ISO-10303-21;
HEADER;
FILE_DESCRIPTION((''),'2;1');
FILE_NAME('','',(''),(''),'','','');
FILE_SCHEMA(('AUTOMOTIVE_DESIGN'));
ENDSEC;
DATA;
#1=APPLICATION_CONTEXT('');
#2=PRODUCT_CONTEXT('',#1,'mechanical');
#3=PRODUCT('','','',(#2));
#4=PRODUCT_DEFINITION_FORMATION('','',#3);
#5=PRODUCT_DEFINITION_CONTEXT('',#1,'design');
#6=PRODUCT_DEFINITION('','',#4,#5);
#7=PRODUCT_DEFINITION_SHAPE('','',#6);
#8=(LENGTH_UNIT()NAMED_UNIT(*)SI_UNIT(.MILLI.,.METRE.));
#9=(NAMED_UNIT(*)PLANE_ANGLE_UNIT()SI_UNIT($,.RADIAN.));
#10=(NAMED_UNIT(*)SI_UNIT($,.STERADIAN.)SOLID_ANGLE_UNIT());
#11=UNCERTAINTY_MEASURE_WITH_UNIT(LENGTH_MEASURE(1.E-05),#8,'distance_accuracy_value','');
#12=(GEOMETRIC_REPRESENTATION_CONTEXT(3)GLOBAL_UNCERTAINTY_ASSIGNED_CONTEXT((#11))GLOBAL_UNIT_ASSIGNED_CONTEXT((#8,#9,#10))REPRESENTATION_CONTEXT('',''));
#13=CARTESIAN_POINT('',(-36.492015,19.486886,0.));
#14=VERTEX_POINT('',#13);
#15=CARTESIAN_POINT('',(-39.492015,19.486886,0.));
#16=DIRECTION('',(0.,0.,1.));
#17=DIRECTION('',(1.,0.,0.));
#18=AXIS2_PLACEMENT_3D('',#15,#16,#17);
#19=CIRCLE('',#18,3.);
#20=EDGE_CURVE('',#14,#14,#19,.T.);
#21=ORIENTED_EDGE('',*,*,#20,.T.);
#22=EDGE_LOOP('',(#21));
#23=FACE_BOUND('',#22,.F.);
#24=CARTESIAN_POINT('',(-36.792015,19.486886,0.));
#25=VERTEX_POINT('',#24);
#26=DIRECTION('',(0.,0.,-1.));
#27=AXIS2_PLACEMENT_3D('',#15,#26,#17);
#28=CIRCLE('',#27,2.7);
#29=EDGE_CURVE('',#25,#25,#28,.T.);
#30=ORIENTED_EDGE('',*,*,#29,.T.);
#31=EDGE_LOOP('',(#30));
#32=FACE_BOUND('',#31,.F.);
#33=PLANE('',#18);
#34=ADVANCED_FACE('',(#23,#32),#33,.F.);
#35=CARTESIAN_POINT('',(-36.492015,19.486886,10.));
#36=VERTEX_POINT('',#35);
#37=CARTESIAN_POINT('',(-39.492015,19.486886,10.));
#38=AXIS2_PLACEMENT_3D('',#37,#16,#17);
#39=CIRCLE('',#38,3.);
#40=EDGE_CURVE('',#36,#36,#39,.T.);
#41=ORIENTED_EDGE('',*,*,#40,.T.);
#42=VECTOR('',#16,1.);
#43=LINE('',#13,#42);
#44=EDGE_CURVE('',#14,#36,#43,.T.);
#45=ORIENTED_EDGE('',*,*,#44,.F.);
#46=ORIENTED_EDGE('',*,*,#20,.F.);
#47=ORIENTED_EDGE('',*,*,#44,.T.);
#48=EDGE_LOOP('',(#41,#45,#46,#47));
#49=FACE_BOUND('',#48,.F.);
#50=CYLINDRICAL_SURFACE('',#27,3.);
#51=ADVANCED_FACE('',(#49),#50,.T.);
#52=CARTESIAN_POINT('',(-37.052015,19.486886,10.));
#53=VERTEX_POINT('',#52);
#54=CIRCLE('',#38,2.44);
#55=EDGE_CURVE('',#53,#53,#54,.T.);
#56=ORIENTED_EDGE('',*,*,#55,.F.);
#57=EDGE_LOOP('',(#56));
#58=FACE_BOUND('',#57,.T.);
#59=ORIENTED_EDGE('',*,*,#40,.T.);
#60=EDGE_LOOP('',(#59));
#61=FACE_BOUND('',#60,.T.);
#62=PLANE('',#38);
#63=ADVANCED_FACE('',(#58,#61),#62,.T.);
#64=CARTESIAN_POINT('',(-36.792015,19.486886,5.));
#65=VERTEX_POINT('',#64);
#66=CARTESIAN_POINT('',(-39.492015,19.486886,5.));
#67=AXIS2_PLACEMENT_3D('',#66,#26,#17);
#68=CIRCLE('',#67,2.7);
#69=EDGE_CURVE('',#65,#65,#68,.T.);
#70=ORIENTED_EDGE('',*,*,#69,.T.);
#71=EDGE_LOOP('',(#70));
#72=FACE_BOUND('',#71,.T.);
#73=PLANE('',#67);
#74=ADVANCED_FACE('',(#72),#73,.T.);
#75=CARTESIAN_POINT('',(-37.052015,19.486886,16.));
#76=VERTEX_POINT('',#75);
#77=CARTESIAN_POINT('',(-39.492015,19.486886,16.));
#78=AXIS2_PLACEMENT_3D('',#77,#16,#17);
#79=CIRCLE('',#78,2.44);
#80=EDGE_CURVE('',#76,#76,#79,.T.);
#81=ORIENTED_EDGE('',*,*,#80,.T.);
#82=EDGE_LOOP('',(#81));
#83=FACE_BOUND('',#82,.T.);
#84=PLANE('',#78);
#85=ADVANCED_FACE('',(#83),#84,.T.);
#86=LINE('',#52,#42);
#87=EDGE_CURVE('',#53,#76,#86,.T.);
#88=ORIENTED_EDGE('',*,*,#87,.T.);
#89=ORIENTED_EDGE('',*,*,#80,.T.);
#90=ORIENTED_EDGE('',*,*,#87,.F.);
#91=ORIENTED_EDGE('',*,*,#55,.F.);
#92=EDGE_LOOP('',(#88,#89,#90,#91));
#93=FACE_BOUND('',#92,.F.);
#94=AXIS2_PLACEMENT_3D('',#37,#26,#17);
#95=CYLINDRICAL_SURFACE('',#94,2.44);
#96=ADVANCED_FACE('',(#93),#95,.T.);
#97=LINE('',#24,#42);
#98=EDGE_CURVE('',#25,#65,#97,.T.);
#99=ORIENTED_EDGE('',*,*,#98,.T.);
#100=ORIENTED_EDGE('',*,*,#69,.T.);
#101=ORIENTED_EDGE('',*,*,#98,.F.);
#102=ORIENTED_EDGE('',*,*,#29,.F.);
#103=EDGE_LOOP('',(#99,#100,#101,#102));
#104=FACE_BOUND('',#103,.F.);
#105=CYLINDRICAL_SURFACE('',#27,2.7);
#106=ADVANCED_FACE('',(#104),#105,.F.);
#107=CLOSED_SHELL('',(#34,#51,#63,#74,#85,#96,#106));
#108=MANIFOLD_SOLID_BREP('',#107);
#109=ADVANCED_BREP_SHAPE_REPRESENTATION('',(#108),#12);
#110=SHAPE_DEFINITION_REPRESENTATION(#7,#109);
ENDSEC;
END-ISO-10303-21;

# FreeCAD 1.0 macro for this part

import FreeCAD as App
import Part
import Sketcher

V = App.Vector
Q = App.Units.Quantity

doc = App.newDocument("Part")
body = doc.addObject("PartDesign::Body", "Body")

sketch1 = body.newObject("Sketcher::SketchObject", "Sketch")
sketch1.AttachmentSupport = (doc.getObject("XY_Plane"), [""])
sketch1.MapMode = "FlatFace"
sketch1.addGeometry(Part.Circle(V(-39.5, 19.5, 0), V(0, 0, 1), 3), False)
sketch1.addConstraint([
    Sketcher.Constraint("Diameter", 0, Q("6 mm")),
    Sketcher.Constraint("DistanceX", 0, 3, -1, 1, Q("39.492015 mm")),
    Sketcher.Constraint("DistanceY", -1, 1, 0, 3, Q("19.486886 mm")),
])
pad1 = body.newObject("PartDesign::Pad", "Pad")
pad1.Profile = sketch1
pad1.Length = 10

sketch2 = body.newObject("Sketcher::SketchObject", "Sketch001")
sketch2.AttachmentSupport = (doc.getObject("XY_Plane"), [""])
sketch2.MapMode = "FlatFace"
sketch2.AttachmentOffset = App.Placement(V(0, 0, 10), App.Rotation())
sketch2.addGeometry(Part.Circle(V(-39.5, 19.5, 0), V(0, 0, 1), 2.4), False)
sketch2.addConstraint([
    Sketcher.Constraint("Diameter", 0, Q("4.88 mm")),
    Sketcher.Constraint("DistanceX", 0, 3, -1, 1, Q("39.492015 mm")),
    Sketcher.Constraint("DistanceY", -1, 1, 0, 3, Q("19.486886 mm")),
])
pad2 = body.newObject("PartDesign::Pad", "Pad001")
pad2.Profile = sketch2
pad2.Length = 6

sketch3 = body.newObject("Sketcher::SketchObject", "Sketch002")
sketch3.AttachmentSupport = (doc.getObject("XY_Plane"), [""])
sketch3.MapMode = "FlatFace"
sketch3.addGeometry(Part.Circle(V(-39.5, 19.5, 0), V(0, 0, 1), 2.7), False)
sketch3.addConstraint([
    Sketcher.Constraint("Diameter", 0, Q("5.4 mm")),
    Sketcher.Constraint("DistanceX", 0, 3, -1, 1, Q("39.492015 mm")),
    Sketcher.Constraint("DistanceY", -1, 1, 0, 3, Q("19.486886 mm")),
])
pocket1 = body.newObject("PartDesign::Pocket", "Pocket")
pocket1.Profile = sketch3
pocket1.Length = 5
pocket1.Reversed = True

doc.recompute()
